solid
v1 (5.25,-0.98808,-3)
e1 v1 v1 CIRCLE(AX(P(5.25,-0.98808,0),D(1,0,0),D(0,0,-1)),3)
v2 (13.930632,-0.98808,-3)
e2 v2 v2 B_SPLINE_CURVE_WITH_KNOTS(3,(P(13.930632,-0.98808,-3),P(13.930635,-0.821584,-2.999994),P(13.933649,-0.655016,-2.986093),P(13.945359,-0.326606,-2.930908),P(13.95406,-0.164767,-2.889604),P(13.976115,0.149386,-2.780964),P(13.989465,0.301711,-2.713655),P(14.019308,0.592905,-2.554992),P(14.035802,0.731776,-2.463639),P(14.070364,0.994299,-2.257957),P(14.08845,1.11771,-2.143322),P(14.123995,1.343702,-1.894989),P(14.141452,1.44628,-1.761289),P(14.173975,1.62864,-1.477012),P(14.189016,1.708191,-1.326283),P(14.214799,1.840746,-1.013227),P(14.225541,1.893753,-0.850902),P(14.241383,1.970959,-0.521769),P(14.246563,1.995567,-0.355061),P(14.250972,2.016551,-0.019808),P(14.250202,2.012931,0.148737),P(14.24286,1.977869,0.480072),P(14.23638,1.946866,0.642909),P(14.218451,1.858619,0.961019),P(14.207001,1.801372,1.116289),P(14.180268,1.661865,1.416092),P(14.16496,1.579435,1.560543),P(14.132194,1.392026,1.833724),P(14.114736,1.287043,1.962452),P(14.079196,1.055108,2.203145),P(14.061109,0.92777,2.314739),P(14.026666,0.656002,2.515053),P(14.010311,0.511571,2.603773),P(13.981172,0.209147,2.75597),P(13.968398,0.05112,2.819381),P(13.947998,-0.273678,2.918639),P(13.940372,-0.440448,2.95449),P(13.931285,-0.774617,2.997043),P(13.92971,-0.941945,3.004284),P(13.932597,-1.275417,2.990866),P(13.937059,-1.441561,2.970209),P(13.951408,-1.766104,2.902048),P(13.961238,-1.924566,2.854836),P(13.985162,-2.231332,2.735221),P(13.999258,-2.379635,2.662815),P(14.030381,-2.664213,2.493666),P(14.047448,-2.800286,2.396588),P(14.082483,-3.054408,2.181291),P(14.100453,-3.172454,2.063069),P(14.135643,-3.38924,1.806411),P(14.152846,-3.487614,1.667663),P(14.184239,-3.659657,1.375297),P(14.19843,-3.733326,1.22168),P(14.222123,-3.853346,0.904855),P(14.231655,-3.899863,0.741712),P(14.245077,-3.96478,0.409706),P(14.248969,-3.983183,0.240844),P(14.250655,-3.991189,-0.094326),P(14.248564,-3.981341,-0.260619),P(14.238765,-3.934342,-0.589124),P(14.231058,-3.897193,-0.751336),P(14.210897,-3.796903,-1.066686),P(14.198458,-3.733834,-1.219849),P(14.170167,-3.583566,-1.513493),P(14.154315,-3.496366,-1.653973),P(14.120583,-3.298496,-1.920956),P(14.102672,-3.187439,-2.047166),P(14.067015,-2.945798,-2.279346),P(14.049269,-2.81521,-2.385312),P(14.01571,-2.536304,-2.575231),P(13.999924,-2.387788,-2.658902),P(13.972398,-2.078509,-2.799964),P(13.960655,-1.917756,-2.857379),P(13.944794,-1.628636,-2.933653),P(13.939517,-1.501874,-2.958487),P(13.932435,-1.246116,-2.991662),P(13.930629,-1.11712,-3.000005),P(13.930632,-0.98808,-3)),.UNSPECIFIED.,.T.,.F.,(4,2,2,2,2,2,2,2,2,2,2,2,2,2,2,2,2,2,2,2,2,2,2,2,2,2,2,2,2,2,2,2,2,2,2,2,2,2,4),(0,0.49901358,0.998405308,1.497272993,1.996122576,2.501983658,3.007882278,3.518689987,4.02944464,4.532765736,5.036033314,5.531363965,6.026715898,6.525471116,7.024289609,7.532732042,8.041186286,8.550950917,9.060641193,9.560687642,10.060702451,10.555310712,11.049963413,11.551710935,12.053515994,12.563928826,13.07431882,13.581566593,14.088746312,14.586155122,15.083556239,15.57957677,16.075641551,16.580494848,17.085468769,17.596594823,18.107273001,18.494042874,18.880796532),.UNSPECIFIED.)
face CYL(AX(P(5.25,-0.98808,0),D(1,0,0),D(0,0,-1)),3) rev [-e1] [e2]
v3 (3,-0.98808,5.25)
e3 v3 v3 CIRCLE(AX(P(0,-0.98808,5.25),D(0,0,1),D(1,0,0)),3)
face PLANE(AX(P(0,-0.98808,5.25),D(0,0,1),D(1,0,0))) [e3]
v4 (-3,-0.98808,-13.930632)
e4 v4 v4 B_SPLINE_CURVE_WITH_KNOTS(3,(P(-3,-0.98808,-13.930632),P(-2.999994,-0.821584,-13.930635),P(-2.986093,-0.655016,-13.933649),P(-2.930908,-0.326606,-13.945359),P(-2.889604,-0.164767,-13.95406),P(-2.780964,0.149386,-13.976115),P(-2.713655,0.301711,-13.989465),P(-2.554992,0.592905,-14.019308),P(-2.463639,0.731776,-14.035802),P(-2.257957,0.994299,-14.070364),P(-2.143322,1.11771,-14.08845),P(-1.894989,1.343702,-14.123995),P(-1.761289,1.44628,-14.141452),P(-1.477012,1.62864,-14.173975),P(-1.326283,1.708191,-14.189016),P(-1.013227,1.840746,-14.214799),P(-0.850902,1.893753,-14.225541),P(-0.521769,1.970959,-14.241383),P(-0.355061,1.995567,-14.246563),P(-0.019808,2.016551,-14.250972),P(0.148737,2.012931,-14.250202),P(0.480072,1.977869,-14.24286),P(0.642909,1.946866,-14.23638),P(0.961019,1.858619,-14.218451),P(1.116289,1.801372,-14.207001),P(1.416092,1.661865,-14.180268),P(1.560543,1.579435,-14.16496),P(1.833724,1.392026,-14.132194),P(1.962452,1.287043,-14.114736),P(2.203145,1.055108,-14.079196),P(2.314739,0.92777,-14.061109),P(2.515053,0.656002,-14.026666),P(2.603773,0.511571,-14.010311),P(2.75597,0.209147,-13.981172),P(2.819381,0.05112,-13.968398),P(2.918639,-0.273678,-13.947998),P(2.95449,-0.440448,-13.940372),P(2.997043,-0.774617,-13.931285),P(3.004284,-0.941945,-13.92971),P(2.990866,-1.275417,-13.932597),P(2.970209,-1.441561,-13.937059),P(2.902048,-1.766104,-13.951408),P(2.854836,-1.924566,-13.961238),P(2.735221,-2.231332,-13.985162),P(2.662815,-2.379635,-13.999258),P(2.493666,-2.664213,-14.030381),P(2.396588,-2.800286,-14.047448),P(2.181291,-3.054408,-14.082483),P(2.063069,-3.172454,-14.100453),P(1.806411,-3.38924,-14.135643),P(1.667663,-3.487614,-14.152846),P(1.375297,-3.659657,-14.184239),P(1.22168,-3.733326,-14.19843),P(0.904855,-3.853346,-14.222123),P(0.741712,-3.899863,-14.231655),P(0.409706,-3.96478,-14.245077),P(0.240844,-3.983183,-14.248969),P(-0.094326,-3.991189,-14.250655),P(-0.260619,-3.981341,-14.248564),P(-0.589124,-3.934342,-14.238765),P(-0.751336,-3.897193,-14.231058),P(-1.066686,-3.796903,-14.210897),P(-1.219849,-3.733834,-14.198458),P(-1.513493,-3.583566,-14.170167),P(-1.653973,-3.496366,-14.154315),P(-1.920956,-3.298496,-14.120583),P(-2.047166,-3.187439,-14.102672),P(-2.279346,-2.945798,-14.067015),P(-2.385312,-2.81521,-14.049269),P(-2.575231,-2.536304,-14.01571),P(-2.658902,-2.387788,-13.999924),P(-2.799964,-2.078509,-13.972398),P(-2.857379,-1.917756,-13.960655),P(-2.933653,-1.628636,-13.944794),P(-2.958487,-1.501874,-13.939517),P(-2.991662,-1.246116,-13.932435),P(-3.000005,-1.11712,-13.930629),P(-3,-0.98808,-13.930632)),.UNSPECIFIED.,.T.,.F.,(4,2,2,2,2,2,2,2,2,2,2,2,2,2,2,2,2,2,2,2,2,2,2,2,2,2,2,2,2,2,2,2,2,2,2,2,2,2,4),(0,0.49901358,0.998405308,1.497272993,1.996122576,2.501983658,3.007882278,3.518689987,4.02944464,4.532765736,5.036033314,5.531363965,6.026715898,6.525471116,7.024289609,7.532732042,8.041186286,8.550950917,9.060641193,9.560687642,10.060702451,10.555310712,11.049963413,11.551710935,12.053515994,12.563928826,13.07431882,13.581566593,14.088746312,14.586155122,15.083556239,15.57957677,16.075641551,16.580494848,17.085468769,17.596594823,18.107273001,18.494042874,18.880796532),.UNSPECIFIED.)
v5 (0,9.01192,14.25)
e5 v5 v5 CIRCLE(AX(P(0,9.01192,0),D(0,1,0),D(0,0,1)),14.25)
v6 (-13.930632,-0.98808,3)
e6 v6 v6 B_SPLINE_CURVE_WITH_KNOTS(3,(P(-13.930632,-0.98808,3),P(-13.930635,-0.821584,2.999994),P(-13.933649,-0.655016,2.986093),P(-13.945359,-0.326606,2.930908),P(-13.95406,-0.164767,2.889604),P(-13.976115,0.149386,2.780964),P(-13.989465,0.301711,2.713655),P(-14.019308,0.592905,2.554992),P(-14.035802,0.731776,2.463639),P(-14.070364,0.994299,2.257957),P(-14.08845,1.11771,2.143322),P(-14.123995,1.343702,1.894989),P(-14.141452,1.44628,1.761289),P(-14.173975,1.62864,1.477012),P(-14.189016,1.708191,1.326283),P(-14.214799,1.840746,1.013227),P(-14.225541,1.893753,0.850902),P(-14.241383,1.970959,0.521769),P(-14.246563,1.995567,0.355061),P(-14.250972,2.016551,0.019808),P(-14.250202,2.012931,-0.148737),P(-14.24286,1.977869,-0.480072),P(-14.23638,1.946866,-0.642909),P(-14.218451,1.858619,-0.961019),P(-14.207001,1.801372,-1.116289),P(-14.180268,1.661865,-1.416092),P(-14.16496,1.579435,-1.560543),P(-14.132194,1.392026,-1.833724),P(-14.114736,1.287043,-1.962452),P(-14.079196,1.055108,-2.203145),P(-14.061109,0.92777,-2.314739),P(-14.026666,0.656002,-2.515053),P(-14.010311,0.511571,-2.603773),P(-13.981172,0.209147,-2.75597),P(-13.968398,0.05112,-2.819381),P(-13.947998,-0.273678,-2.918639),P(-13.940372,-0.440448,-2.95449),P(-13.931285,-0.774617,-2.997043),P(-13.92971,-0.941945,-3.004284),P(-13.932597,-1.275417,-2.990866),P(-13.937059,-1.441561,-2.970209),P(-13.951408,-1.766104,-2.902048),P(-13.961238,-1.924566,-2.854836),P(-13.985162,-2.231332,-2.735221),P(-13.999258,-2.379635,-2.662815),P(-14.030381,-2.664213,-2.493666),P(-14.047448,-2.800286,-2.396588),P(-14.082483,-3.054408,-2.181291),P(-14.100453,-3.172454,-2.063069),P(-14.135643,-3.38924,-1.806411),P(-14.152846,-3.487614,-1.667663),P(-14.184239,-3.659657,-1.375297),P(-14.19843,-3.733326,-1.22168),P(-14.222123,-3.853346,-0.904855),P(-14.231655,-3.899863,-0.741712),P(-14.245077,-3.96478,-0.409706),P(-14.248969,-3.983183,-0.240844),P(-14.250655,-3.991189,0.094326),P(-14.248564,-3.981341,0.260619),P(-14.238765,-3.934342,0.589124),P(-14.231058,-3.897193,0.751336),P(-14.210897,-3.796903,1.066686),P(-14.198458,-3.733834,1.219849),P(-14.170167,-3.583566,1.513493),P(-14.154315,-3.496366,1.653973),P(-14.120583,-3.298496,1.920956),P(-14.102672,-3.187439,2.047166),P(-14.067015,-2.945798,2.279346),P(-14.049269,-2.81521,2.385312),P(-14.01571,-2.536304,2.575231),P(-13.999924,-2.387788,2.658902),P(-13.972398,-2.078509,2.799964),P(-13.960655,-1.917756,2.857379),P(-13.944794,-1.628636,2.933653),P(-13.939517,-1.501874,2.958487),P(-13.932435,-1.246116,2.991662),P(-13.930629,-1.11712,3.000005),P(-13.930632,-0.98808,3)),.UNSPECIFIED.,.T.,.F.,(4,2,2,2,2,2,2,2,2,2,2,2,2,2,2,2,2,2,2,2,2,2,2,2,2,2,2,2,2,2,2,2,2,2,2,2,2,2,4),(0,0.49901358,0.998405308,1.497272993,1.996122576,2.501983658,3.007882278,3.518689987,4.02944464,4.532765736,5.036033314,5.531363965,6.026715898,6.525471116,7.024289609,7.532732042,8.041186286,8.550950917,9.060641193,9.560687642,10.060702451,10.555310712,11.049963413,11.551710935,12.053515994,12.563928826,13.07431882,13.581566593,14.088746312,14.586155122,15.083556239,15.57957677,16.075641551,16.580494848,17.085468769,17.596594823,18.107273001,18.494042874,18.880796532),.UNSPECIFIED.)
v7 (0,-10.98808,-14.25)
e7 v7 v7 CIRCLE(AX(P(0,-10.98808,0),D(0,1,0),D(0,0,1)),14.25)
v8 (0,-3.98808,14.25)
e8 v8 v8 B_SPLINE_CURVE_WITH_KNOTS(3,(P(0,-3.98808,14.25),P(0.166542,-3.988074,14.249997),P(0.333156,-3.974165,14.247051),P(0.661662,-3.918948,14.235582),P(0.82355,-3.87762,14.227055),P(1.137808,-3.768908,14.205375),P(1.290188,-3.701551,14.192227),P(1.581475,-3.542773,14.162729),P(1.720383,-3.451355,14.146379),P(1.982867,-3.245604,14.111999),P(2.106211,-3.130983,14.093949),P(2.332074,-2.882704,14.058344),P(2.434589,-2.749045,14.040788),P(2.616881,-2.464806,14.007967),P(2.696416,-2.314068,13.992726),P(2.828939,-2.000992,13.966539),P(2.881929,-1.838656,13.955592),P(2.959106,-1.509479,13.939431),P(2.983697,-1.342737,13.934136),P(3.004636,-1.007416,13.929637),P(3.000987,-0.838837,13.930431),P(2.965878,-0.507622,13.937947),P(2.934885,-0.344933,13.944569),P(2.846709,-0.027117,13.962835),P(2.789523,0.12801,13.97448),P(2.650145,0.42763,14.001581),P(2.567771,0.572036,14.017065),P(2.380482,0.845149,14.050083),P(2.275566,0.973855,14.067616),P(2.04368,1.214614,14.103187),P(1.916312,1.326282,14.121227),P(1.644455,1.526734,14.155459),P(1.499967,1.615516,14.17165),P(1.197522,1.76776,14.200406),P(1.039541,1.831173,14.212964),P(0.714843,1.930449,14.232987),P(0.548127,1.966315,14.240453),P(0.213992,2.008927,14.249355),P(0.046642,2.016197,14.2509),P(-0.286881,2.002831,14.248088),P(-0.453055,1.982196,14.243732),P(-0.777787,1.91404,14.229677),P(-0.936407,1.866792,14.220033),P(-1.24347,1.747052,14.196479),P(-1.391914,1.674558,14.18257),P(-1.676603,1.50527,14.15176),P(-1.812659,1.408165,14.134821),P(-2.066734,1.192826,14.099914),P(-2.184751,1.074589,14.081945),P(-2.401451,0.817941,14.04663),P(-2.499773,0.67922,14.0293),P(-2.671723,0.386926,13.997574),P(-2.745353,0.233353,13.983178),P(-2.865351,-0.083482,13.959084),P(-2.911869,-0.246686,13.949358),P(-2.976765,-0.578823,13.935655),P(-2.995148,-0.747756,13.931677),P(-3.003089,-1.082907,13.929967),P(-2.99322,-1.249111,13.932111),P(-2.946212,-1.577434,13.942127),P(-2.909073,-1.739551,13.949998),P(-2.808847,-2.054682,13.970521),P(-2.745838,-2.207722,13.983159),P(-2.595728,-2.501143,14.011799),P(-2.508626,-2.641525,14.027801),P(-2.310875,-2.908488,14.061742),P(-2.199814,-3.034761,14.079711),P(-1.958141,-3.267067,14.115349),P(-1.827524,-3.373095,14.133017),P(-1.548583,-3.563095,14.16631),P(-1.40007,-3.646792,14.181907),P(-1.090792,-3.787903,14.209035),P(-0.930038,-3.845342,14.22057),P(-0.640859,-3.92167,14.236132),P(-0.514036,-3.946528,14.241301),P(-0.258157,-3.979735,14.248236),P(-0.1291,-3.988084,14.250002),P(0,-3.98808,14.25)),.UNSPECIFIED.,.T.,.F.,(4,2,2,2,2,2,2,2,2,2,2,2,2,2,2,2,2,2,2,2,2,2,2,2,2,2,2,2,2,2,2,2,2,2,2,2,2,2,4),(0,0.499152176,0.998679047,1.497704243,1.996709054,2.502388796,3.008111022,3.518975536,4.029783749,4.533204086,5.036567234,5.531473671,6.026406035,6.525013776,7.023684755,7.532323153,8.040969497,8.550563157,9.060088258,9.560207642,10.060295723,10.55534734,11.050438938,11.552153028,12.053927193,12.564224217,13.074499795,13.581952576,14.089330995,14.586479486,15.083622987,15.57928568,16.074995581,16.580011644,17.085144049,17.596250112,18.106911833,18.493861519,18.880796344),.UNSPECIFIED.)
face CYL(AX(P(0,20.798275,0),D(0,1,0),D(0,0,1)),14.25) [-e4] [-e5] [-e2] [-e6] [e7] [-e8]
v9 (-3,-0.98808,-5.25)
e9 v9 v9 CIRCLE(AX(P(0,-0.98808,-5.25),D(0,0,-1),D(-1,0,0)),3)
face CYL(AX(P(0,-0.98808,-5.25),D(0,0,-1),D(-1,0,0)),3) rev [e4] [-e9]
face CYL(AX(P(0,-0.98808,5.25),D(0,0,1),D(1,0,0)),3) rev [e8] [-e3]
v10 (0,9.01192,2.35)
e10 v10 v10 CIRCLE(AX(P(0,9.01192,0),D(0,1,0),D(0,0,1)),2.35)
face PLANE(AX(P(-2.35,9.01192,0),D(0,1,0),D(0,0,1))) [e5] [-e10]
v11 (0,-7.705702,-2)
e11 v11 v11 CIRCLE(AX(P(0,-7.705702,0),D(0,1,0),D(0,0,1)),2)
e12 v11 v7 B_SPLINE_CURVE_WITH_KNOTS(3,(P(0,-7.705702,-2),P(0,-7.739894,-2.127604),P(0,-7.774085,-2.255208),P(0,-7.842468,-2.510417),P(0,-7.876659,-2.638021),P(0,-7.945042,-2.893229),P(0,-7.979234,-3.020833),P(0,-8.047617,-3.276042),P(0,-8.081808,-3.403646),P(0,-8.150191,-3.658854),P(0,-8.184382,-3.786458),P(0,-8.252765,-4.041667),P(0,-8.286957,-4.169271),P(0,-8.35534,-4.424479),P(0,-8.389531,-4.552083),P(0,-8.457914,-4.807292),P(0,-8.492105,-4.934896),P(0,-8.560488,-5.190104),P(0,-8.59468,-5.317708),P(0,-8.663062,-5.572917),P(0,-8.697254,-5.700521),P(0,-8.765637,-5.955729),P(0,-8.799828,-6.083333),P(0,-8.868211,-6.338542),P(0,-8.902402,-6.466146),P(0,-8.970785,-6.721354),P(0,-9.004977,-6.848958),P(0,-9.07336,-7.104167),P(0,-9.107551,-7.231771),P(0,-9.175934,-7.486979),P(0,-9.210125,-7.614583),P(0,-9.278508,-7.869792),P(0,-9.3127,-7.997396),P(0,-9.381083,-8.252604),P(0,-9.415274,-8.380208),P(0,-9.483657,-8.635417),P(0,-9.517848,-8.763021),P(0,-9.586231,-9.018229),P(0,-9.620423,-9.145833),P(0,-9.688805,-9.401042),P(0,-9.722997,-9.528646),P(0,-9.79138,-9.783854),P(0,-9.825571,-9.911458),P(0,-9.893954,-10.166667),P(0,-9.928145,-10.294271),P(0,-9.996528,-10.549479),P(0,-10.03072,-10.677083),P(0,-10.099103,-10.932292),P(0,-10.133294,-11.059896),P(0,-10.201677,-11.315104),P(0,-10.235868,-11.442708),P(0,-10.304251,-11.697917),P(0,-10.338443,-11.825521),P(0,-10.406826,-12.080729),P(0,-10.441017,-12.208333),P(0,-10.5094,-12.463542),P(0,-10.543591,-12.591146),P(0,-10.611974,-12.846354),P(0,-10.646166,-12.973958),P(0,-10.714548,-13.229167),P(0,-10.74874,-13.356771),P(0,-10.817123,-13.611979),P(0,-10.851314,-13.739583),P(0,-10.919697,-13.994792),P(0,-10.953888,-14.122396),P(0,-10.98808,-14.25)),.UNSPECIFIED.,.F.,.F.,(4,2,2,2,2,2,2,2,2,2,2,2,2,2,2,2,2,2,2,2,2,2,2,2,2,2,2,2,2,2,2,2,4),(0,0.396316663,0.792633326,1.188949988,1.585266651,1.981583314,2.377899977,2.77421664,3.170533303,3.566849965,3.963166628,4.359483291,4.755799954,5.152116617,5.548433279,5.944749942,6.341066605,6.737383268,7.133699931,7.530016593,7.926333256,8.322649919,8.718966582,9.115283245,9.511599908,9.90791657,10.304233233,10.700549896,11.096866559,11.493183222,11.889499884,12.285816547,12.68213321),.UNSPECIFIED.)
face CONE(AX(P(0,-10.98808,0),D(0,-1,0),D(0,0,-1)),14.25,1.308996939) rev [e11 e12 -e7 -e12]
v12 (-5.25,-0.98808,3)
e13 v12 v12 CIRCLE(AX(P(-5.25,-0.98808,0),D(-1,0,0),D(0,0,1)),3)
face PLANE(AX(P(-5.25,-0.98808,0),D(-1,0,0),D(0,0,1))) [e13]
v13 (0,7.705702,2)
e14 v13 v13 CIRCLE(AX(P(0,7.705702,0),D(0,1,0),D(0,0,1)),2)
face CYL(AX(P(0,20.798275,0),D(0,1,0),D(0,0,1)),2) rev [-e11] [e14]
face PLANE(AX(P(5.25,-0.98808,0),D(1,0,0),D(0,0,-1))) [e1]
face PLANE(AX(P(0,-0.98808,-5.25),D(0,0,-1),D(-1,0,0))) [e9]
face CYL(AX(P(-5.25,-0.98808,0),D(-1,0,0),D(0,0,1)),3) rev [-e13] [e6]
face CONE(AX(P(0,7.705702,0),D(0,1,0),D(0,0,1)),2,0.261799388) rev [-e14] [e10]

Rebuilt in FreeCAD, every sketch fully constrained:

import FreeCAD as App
import Part
import Sketcher
from FreeCAD import Vector
Q = App.Units.Quantity


def add_polygon(sketch, points):
    """Adds a closed chain of lines whose ends are joined by coincident constraints."""
    first, n = sketch.GeometryCount, len(points)
    for a, b in zip(points, points[1:] + points[:1]):
        sketch.addGeometry(Part.LineSegment(App.Vector(*a, 0), App.Vector(*b, 0)), False)
    for i in range(n):
        sketch.addConstraint(Sketcher.Constraint("Coincident", first + i, 2, first + (i + 1) % n, 1))

doc = App.newDocument("Part")
params = doc.addObject("Spreadsheet::Sheet", "Params")
for row, (alias, value) in enumerate([
    ("sketch1_height", "20 mm"),
    ("sketch1_width", "11.9 mm"),
    ("revolution_angle", "360 deg"),
    ("sketch2_diameter", "6 mm"),
    ("pocket1_length", "9 mm"),
], start=1):
    params.set(f"A{row}", alias)
    params.set(f"B{row}", "=" + value)
    params.setAlias(f"B{row}", alias)

body = doc.addObject("PartDesign::Body", "Body")

# Sketch on XY plane
sketch1 = body.newObject("Sketcher::SketchObject", "Sketch")
sketch1.AttachmentSupport = (doc.getObject("XY_Plane"), [""])
sketch1.MapMode = "FlatFace"
add_polygon(sketch1, [(-2, -7.705702), (-2, 7.705702), (-2.35, 9.01192), (-14.25, 9.01192), (-14.25, -10.98808)])  # lines 0-4
sketch1.addConstraint(Sketcher.Constraint("Vertical", 0))
sketch1.addConstraint(Sketcher.Constraint("Horizontal", 2))
sketch1.addConstraint(Sketcher.Constraint("Vertical", 3))
sketch1.addConstraint(Sketcher.Constraint("Perpendicular", 1, 4))
sketch1.addConstraint(Sketcher.Constraint("DistanceY", 3, 2, 3, 1, 20.0))
sketch1.addConstraint(Sketcher.Constraint("Angle", 1, Q("105 deg")))
sketch1.addConstraint(Sketcher.Constraint("DistanceX", 2, 2, 2, 1, 11.9))
sketch1.addConstraint(Sketcher.Constraint("DistanceX", 0, 2, -1, 1, 2.0))
sketch1.addConstraint(Sketcher.Constraint("DistanceX", 1, 2, -1, 1, 2.35))
sketch1.addConstraint(Sketcher.Constraint("DistanceY", -1, 1, 1, 2, 9.01192))
sketch1.setExpression("Constraints[9]", "Params.sketch1_height")
sketch1.setExpression("Constraints[11]", "Params.sketch1_width")
revolution = body.newObject("PartDesign::Revolution", "Revolution")
revolution.Profile = sketch1
revolution.ReferenceAxis = (sketch1, ["V_Axis"])
revolution.setExpression("Angle", "Params.revolution_angle")

# Sketch on YZ plane
sketch2 = body.newObject("Sketcher::SketchObject", "Sketch001")
sketch2.AttachmentSupport = (doc.getObject("YZ_Plane"), [""])
sketch2.MapMode = "FlatFace"
sketch2.AttachmentOffset = App.Placement(Vector(0, 0, 14.25), App.Rotation())
sketch2.addGeometry(Part.Circle(Vector(-0.98808, 0, 0), Vector(0, 0, 1), 3), False)
sketch2.addConstraint(Sketcher.Constraint("PointOnObject", 0, 3, -1))
sketch2.addConstraint(Sketcher.Constraint("Diameter", 0, 6.0))
sketch2.addConstraint(Sketcher.Constraint("DistanceX", 0, 3, -1, 1, 0.98808))
sketch2.setExpression("Constraints[1]", "Params.sketch2_diameter")
pocket1 = body.newObject("PartDesign::Pocket", "Pocket")
pocket1.Profile = sketch2
pocket1.setExpression("Length", "Params.pocket1_length")
doc.recompute()

polarpattern = body.newObject("PartDesign::PolarPattern", "PolarPattern")
polarpattern.Originals = [pocket1]
polarpattern.Axis = (doc.getObject("Y_Axis"), [""])
polarpattern.Angle = 360
polarpattern.Occurrences = 4
body.Tip = polarpattern

doc.recompute()
